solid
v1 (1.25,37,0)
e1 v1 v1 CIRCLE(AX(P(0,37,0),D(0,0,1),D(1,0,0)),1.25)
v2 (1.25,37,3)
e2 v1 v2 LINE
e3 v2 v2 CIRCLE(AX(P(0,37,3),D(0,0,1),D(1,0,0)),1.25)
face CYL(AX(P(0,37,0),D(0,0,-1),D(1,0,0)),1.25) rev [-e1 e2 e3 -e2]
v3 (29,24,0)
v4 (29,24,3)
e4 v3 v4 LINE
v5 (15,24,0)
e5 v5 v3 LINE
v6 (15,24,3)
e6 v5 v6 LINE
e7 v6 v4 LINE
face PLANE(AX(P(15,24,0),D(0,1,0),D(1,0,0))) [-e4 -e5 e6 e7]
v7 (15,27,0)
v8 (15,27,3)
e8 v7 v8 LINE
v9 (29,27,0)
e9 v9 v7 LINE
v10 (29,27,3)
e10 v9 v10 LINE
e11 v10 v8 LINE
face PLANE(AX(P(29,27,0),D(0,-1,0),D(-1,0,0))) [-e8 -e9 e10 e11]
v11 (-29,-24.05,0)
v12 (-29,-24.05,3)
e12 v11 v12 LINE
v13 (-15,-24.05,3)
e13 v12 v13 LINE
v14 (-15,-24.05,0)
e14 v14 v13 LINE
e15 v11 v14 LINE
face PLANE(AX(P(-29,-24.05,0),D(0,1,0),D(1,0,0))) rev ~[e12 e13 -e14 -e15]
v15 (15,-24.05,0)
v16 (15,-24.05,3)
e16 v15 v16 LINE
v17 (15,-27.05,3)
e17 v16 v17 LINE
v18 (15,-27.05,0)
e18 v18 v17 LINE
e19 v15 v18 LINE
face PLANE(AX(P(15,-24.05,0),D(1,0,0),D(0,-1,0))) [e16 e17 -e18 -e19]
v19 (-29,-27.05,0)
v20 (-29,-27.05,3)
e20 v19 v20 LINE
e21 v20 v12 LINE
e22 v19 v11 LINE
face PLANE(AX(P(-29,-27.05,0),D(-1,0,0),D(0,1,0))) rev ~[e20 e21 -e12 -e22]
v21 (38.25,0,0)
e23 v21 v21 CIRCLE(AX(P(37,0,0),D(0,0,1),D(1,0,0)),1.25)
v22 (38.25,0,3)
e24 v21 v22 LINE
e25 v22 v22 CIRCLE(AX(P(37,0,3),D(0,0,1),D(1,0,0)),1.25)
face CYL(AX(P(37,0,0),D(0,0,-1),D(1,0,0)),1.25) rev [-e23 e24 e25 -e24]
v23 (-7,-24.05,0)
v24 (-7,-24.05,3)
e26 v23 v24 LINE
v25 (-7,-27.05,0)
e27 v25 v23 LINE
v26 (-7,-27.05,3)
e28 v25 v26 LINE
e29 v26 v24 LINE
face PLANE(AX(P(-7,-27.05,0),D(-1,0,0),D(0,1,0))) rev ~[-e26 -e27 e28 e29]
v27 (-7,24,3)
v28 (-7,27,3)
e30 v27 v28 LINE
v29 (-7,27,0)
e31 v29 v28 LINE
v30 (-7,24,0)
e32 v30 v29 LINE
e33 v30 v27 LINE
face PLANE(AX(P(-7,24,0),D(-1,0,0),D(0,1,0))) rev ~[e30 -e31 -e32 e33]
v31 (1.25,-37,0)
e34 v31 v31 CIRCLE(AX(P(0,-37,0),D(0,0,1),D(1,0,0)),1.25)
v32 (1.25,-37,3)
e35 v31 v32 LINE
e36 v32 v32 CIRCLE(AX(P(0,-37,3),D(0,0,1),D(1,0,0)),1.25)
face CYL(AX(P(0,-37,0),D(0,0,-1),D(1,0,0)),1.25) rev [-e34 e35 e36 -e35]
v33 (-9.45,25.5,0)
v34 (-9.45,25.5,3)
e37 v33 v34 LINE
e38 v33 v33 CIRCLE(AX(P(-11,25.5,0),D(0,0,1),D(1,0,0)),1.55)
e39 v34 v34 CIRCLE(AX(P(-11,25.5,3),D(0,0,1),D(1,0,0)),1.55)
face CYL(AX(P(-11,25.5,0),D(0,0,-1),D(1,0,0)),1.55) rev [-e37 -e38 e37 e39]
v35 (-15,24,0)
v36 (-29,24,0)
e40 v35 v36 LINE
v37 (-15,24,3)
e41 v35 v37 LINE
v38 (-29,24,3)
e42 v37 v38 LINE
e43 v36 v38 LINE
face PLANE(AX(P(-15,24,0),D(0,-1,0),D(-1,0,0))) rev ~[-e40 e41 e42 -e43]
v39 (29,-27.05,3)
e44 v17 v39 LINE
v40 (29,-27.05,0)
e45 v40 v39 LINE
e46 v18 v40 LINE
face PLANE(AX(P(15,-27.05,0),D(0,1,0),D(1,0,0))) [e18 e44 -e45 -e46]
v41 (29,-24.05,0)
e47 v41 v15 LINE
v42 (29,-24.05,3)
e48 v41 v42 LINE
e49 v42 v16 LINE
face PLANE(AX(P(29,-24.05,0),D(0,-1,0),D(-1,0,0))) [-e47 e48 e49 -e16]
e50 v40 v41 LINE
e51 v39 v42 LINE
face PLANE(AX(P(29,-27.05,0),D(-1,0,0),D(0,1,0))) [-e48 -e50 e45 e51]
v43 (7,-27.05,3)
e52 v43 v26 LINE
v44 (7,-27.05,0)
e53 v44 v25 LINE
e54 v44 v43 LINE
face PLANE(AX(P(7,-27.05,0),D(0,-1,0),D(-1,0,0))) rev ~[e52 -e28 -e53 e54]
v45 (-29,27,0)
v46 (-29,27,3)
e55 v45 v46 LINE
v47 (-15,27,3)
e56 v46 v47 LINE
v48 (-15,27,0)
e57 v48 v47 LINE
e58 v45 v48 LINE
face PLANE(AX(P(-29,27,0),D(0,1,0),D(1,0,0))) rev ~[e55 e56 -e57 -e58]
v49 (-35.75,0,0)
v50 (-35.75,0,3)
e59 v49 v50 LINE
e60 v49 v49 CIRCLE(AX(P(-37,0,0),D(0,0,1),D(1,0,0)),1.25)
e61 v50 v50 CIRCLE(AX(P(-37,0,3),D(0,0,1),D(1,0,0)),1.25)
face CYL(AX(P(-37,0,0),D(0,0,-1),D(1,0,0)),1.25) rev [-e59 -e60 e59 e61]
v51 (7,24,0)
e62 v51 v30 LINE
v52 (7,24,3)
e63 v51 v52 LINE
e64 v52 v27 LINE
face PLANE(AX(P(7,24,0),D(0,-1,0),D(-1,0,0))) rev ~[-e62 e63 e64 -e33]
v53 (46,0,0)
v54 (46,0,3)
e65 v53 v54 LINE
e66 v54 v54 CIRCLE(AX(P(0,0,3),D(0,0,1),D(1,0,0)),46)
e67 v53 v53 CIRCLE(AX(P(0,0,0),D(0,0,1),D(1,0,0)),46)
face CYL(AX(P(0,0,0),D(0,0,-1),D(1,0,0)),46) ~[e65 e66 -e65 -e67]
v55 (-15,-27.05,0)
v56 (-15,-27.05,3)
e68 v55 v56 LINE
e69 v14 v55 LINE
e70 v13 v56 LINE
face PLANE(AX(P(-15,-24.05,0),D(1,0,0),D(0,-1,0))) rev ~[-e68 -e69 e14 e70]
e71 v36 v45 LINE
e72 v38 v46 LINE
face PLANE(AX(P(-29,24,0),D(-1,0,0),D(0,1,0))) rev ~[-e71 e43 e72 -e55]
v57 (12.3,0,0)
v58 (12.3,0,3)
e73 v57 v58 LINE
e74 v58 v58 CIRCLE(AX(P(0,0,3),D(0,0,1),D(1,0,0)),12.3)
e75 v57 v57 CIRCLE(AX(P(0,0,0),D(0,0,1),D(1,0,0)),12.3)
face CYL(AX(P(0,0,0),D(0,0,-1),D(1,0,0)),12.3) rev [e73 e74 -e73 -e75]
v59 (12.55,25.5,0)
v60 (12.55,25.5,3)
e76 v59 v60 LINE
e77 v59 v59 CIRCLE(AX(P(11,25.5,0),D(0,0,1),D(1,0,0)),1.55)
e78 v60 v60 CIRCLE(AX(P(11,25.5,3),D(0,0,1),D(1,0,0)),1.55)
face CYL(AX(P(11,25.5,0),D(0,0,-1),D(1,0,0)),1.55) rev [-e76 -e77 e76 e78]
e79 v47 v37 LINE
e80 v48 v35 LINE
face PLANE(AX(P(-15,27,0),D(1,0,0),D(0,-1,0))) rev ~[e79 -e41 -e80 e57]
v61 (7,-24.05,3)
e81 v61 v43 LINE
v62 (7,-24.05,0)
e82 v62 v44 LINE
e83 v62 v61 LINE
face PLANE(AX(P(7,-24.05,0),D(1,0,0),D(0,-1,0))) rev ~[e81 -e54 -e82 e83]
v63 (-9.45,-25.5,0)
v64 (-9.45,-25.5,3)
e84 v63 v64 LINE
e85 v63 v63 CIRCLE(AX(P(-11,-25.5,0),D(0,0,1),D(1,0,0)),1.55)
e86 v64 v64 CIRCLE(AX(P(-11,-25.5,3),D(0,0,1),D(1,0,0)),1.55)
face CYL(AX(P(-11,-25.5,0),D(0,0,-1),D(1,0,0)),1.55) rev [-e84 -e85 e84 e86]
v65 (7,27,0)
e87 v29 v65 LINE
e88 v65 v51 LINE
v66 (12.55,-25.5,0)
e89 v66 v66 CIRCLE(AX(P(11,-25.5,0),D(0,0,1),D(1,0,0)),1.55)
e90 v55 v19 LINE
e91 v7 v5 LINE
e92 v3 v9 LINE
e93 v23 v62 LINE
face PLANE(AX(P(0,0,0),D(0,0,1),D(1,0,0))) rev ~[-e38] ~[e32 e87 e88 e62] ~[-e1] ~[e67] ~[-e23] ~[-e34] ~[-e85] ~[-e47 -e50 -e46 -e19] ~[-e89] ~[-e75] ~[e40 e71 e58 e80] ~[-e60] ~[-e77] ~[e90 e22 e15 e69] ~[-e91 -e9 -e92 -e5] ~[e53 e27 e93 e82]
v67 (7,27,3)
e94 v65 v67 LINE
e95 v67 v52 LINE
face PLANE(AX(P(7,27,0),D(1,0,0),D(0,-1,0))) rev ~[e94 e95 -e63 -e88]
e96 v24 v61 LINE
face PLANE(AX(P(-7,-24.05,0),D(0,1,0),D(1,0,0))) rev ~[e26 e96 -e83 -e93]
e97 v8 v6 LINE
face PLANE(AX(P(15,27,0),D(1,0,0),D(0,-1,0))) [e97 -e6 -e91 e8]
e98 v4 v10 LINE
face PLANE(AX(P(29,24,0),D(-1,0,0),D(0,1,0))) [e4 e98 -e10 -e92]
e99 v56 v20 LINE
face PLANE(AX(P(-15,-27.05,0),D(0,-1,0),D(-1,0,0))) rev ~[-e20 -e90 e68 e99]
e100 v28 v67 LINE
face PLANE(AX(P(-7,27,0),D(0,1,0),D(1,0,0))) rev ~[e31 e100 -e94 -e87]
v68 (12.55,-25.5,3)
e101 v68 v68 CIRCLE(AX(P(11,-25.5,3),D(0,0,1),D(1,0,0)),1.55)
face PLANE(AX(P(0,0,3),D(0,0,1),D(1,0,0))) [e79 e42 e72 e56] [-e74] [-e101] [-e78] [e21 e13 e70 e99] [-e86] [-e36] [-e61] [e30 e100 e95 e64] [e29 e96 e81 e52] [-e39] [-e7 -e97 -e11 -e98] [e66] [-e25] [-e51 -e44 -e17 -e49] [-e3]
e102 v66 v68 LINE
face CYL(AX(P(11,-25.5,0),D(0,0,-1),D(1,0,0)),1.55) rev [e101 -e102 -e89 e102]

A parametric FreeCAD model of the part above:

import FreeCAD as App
import Part
import Sketcher
from FreeCAD import Vector


def add_polygon(sketch, points):
    """Adds a closed chain of lines whose ends are joined by coincident constraints."""
    first, n = sketch.GeometryCount, len(points)
    for a, b in zip(points, points[1:] + points[:1]):
        sketch.addGeometry(Part.LineSegment(App.Vector(*a, 0), App.Vector(*b, 0)), False)
    for i in range(n):
        sketch.addConstraint(Sketcher.Constraint("Coincident", first + i, 2, first + (i + 1) % n, 1))

doc = App.newDocument("Part")
body = doc.addObject("PartDesign::Body", "Body")

# Sketch on XY plane
sketch1 = body.newObject("Sketcher::SketchObject", "Sketch")
sketch1.AttachmentSupport = (doc.getObject("XY_Plane"), [""])
sketch1.MapMode = "FlatFace"
sketch1.addGeometry(Part.Circle(Vector(0, 0, 0), Vector(0, 0, 1), 46), False)  # 0
add_polygon(sketch1, [(-15, -24.1), (-15, -27.1), (-29, -27.1), (-29, -24.1)])  # lines 1-4
sketch1.addGeometry(Part.Circle(Vector(-11, -25.5, 0), Vector(0, 0, 1), 1.6), False)  # 5
sketch1.addGeometry(Part.Circle(Vector(0, -37, 0), Vector(0, 0, 1), 1.2), False)  # 6
add_polygon(sketch1, [(7, -24.1), (7, -27.1), (-7, -27.1), (-7, -24.1)])  # lines 7-10
sketch1.addGeometry(Part.Circle(Vector(11, -25.5, 0), Vector(0, 0, 1), 1.6), False)  # 11
add_polygon(sketch1, [(29, -27.1), (15, -27.1), (15, -24.1), (29, -24.1)])  # lines 12-15
sketch1.addGeometry(Part.Circle(Vector(-37, 0, 0), Vector(0, 0, 1), 1.2), False)  # 16
add_polygon(sketch1, [(-15, 27), (-15, 24), (-29, 24), (-29, 27)])  # lines 17-20
sketch1.addGeometry(Part.Circle(Vector(-11, 25.5, 0), Vector(0, 0, 1), 1.6), False)  # 21
sketch1.addGeometry(Part.Circle(Vector(0, 0, 0), Vector(0, 0, 1), 12.3), False)  # 22
sketch1.addGeometry(Part.Circle(Vector(37, 0, 0), Vector(0, 0, 1), 1.2), False)  # 23
add_polygon(sketch1, [(7, 27), (7, 24), (-7, 24), (-7, 27)])  # lines 24-27
sketch1.addGeometry(Part.Circle(Vector(11, 25.5, 0), Vector(0, 0, 1), 1.6), False)  # 28
add_polygon(sketch1, [(29, 24), (15, 24), (15, 27), (29, 27)])  # lines 29-32
sketch1.addGeometry(Part.Circle(Vector(0, 37, 0), Vector(0, 0, 1), 1.2), False)  # 33
sketch1.addConstraint([
    Sketcher.Constraint("Vertical", 1),
    Sketcher.Constraint("Horizontal", 2),
    Sketcher.Constraint("Vertical", 3),
    Sketcher.Constraint("Horizontal", 4),
    Sketcher.Constraint("Vertical", 7),
    Sketcher.Constraint("Horizontal", 8),
    Sketcher.Constraint("Vertical", 9),
    Sketcher.Constraint("Horizontal", 10),
    Sketcher.Constraint("Horizontal", 12),
    Sketcher.Constraint("Vertical", 13),
    Sketcher.Constraint("Horizontal", 14),
    Sketcher.Constraint("Vertical", 15),
    Sketcher.Constraint("Vertical", 17),
    Sketcher.Constraint("Horizontal", 18),
    Sketcher.Constraint("Vertical", 19),
    Sketcher.Constraint("Horizontal", 20),
    Sketcher.Constraint("Vertical", 24),
    Sketcher.Constraint("Horizontal", 25),
    Sketcher.Constraint("Vertical", 26),
    Sketcher.Constraint("Horizontal", 27),
    Sketcher.Constraint("Horizontal", 29),
    Sketcher.Constraint("Vertical", 30),
    Sketcher.Constraint("Horizontal", 31),
    Sketcher.Constraint("Vertical", 32),
    Sketcher.Constraint("Coincident", 0, 3, -1, 1),
    Sketcher.Constraint("Coincident", 22, 3, -1, 1),
    Sketcher.Constraint("Equal", 5, 11),
    Sketcher.Constraint("Equal", 6, 16),
    Sketcher.Constraint("Equal", 11, 21),
    Sketcher.Constraint("Equal", 16, 23),
    Sketcher.Constraint("Equal", 21, 28),
    Sketcher.Constraint("Equal", 23, 33),
    Sketcher.Constraint("Symmetric", 11, 3, 21, 3, -1, 1),
    Sketcher.Constraint("Symmetric", 16, 3, 23, 3, -1, 1),
    Sketcher.Constraint("Symmetric", 5, 3, 28, 3, -1, 1),
    Sketcher.Constraint("Symmetric", 6, 3, 33, 3, -1, 1),
    Sketcher.Constraint("Symmetric", 5, 3, 11, 3, -2),
    Sketcher.Constraint("Symmetric", 1, 2, 12, 2, -2),
    Sketcher.Constraint("Symmetric", 3, 2, 14, 2, -2),
    Sketcher.Constraint("Symmetric", 17, 2, 29, 2, -2),
    Sketcher.Constraint("Symmetric", 19, 2, 31, 2, -2),
    Sketcher.Constraint("PointOnObject", 6, 3, -2),
    Sketcher.Constraint("PointOnObject", 16, 3, -1),
    Sketcher.Constraint("Horizontal", 2, 2, 7, 2),
    Sketcher.Constraint("Horizontal", 4, 2, 9, 2),
    Sketcher.Constraint("Horizontal", 18, 2, 24, 2),
    Sketcher.Constraint("Horizontal", 20, 2, 26, 2),
    Sketcher.Constraint("Vertical", 4, 2, 17, 2),
    Sketcher.Constraint("Vertical", 3, 2, 18, 2),
    Sketcher.Constraint("Vertical", 10, 2, 24, 2),
    Sketcher.Constraint("Vertical", 9, 2, 25, 2),
    Sketcher.Constraint("Equal", 4, 8),
    Sketcher.Constraint("Equal", 15, 17),
    Sketcher.Constraint("Diameter", 0, 92.0),
    Sketcher.Constraint("Diameter", 5, 3.1),
    Sketcher.Constraint("Diameter", 6, 2.5),
    Sketcher.Constraint("Diameter", 22, 24.6),
    Sketcher.Constraint("DistanceX", 2, 2, 2, 1, 14.0),
    Sketcher.Constraint("DistanceY", 1, 2, 1, 1, 3.0),
    Sketcher.Constraint("DistanceX", 5, 3, -1, 1, 11.0),
    Sketcher.Constraint("DistanceX", 1, 2, 5, 3, 4.0),
    Sketcher.Constraint("DistanceX", 7, 2, 11, 3, 4.0),
    Sketcher.Constraint("DistanceY", 5, 3, -1, 1, 25.5),
    Sketcher.Constraint("DistanceY", 17, 2, 21, 3, 1.5),
    Sketcher.Constraint("DistanceY", 6, 3, -1, 1, 37.0),
    Sketcher.Constraint("DistanceX", 16, 3, -1, 1, 37.0),
    Sketcher.Constraint("DistanceY", 1, 2, -1, 1, 27.05),
])
pad1 = body.newObject("PartDesign::Pad", "Pad")
pad1.Profile = sketch1
pad1.Length = 3

doc.recompute()
